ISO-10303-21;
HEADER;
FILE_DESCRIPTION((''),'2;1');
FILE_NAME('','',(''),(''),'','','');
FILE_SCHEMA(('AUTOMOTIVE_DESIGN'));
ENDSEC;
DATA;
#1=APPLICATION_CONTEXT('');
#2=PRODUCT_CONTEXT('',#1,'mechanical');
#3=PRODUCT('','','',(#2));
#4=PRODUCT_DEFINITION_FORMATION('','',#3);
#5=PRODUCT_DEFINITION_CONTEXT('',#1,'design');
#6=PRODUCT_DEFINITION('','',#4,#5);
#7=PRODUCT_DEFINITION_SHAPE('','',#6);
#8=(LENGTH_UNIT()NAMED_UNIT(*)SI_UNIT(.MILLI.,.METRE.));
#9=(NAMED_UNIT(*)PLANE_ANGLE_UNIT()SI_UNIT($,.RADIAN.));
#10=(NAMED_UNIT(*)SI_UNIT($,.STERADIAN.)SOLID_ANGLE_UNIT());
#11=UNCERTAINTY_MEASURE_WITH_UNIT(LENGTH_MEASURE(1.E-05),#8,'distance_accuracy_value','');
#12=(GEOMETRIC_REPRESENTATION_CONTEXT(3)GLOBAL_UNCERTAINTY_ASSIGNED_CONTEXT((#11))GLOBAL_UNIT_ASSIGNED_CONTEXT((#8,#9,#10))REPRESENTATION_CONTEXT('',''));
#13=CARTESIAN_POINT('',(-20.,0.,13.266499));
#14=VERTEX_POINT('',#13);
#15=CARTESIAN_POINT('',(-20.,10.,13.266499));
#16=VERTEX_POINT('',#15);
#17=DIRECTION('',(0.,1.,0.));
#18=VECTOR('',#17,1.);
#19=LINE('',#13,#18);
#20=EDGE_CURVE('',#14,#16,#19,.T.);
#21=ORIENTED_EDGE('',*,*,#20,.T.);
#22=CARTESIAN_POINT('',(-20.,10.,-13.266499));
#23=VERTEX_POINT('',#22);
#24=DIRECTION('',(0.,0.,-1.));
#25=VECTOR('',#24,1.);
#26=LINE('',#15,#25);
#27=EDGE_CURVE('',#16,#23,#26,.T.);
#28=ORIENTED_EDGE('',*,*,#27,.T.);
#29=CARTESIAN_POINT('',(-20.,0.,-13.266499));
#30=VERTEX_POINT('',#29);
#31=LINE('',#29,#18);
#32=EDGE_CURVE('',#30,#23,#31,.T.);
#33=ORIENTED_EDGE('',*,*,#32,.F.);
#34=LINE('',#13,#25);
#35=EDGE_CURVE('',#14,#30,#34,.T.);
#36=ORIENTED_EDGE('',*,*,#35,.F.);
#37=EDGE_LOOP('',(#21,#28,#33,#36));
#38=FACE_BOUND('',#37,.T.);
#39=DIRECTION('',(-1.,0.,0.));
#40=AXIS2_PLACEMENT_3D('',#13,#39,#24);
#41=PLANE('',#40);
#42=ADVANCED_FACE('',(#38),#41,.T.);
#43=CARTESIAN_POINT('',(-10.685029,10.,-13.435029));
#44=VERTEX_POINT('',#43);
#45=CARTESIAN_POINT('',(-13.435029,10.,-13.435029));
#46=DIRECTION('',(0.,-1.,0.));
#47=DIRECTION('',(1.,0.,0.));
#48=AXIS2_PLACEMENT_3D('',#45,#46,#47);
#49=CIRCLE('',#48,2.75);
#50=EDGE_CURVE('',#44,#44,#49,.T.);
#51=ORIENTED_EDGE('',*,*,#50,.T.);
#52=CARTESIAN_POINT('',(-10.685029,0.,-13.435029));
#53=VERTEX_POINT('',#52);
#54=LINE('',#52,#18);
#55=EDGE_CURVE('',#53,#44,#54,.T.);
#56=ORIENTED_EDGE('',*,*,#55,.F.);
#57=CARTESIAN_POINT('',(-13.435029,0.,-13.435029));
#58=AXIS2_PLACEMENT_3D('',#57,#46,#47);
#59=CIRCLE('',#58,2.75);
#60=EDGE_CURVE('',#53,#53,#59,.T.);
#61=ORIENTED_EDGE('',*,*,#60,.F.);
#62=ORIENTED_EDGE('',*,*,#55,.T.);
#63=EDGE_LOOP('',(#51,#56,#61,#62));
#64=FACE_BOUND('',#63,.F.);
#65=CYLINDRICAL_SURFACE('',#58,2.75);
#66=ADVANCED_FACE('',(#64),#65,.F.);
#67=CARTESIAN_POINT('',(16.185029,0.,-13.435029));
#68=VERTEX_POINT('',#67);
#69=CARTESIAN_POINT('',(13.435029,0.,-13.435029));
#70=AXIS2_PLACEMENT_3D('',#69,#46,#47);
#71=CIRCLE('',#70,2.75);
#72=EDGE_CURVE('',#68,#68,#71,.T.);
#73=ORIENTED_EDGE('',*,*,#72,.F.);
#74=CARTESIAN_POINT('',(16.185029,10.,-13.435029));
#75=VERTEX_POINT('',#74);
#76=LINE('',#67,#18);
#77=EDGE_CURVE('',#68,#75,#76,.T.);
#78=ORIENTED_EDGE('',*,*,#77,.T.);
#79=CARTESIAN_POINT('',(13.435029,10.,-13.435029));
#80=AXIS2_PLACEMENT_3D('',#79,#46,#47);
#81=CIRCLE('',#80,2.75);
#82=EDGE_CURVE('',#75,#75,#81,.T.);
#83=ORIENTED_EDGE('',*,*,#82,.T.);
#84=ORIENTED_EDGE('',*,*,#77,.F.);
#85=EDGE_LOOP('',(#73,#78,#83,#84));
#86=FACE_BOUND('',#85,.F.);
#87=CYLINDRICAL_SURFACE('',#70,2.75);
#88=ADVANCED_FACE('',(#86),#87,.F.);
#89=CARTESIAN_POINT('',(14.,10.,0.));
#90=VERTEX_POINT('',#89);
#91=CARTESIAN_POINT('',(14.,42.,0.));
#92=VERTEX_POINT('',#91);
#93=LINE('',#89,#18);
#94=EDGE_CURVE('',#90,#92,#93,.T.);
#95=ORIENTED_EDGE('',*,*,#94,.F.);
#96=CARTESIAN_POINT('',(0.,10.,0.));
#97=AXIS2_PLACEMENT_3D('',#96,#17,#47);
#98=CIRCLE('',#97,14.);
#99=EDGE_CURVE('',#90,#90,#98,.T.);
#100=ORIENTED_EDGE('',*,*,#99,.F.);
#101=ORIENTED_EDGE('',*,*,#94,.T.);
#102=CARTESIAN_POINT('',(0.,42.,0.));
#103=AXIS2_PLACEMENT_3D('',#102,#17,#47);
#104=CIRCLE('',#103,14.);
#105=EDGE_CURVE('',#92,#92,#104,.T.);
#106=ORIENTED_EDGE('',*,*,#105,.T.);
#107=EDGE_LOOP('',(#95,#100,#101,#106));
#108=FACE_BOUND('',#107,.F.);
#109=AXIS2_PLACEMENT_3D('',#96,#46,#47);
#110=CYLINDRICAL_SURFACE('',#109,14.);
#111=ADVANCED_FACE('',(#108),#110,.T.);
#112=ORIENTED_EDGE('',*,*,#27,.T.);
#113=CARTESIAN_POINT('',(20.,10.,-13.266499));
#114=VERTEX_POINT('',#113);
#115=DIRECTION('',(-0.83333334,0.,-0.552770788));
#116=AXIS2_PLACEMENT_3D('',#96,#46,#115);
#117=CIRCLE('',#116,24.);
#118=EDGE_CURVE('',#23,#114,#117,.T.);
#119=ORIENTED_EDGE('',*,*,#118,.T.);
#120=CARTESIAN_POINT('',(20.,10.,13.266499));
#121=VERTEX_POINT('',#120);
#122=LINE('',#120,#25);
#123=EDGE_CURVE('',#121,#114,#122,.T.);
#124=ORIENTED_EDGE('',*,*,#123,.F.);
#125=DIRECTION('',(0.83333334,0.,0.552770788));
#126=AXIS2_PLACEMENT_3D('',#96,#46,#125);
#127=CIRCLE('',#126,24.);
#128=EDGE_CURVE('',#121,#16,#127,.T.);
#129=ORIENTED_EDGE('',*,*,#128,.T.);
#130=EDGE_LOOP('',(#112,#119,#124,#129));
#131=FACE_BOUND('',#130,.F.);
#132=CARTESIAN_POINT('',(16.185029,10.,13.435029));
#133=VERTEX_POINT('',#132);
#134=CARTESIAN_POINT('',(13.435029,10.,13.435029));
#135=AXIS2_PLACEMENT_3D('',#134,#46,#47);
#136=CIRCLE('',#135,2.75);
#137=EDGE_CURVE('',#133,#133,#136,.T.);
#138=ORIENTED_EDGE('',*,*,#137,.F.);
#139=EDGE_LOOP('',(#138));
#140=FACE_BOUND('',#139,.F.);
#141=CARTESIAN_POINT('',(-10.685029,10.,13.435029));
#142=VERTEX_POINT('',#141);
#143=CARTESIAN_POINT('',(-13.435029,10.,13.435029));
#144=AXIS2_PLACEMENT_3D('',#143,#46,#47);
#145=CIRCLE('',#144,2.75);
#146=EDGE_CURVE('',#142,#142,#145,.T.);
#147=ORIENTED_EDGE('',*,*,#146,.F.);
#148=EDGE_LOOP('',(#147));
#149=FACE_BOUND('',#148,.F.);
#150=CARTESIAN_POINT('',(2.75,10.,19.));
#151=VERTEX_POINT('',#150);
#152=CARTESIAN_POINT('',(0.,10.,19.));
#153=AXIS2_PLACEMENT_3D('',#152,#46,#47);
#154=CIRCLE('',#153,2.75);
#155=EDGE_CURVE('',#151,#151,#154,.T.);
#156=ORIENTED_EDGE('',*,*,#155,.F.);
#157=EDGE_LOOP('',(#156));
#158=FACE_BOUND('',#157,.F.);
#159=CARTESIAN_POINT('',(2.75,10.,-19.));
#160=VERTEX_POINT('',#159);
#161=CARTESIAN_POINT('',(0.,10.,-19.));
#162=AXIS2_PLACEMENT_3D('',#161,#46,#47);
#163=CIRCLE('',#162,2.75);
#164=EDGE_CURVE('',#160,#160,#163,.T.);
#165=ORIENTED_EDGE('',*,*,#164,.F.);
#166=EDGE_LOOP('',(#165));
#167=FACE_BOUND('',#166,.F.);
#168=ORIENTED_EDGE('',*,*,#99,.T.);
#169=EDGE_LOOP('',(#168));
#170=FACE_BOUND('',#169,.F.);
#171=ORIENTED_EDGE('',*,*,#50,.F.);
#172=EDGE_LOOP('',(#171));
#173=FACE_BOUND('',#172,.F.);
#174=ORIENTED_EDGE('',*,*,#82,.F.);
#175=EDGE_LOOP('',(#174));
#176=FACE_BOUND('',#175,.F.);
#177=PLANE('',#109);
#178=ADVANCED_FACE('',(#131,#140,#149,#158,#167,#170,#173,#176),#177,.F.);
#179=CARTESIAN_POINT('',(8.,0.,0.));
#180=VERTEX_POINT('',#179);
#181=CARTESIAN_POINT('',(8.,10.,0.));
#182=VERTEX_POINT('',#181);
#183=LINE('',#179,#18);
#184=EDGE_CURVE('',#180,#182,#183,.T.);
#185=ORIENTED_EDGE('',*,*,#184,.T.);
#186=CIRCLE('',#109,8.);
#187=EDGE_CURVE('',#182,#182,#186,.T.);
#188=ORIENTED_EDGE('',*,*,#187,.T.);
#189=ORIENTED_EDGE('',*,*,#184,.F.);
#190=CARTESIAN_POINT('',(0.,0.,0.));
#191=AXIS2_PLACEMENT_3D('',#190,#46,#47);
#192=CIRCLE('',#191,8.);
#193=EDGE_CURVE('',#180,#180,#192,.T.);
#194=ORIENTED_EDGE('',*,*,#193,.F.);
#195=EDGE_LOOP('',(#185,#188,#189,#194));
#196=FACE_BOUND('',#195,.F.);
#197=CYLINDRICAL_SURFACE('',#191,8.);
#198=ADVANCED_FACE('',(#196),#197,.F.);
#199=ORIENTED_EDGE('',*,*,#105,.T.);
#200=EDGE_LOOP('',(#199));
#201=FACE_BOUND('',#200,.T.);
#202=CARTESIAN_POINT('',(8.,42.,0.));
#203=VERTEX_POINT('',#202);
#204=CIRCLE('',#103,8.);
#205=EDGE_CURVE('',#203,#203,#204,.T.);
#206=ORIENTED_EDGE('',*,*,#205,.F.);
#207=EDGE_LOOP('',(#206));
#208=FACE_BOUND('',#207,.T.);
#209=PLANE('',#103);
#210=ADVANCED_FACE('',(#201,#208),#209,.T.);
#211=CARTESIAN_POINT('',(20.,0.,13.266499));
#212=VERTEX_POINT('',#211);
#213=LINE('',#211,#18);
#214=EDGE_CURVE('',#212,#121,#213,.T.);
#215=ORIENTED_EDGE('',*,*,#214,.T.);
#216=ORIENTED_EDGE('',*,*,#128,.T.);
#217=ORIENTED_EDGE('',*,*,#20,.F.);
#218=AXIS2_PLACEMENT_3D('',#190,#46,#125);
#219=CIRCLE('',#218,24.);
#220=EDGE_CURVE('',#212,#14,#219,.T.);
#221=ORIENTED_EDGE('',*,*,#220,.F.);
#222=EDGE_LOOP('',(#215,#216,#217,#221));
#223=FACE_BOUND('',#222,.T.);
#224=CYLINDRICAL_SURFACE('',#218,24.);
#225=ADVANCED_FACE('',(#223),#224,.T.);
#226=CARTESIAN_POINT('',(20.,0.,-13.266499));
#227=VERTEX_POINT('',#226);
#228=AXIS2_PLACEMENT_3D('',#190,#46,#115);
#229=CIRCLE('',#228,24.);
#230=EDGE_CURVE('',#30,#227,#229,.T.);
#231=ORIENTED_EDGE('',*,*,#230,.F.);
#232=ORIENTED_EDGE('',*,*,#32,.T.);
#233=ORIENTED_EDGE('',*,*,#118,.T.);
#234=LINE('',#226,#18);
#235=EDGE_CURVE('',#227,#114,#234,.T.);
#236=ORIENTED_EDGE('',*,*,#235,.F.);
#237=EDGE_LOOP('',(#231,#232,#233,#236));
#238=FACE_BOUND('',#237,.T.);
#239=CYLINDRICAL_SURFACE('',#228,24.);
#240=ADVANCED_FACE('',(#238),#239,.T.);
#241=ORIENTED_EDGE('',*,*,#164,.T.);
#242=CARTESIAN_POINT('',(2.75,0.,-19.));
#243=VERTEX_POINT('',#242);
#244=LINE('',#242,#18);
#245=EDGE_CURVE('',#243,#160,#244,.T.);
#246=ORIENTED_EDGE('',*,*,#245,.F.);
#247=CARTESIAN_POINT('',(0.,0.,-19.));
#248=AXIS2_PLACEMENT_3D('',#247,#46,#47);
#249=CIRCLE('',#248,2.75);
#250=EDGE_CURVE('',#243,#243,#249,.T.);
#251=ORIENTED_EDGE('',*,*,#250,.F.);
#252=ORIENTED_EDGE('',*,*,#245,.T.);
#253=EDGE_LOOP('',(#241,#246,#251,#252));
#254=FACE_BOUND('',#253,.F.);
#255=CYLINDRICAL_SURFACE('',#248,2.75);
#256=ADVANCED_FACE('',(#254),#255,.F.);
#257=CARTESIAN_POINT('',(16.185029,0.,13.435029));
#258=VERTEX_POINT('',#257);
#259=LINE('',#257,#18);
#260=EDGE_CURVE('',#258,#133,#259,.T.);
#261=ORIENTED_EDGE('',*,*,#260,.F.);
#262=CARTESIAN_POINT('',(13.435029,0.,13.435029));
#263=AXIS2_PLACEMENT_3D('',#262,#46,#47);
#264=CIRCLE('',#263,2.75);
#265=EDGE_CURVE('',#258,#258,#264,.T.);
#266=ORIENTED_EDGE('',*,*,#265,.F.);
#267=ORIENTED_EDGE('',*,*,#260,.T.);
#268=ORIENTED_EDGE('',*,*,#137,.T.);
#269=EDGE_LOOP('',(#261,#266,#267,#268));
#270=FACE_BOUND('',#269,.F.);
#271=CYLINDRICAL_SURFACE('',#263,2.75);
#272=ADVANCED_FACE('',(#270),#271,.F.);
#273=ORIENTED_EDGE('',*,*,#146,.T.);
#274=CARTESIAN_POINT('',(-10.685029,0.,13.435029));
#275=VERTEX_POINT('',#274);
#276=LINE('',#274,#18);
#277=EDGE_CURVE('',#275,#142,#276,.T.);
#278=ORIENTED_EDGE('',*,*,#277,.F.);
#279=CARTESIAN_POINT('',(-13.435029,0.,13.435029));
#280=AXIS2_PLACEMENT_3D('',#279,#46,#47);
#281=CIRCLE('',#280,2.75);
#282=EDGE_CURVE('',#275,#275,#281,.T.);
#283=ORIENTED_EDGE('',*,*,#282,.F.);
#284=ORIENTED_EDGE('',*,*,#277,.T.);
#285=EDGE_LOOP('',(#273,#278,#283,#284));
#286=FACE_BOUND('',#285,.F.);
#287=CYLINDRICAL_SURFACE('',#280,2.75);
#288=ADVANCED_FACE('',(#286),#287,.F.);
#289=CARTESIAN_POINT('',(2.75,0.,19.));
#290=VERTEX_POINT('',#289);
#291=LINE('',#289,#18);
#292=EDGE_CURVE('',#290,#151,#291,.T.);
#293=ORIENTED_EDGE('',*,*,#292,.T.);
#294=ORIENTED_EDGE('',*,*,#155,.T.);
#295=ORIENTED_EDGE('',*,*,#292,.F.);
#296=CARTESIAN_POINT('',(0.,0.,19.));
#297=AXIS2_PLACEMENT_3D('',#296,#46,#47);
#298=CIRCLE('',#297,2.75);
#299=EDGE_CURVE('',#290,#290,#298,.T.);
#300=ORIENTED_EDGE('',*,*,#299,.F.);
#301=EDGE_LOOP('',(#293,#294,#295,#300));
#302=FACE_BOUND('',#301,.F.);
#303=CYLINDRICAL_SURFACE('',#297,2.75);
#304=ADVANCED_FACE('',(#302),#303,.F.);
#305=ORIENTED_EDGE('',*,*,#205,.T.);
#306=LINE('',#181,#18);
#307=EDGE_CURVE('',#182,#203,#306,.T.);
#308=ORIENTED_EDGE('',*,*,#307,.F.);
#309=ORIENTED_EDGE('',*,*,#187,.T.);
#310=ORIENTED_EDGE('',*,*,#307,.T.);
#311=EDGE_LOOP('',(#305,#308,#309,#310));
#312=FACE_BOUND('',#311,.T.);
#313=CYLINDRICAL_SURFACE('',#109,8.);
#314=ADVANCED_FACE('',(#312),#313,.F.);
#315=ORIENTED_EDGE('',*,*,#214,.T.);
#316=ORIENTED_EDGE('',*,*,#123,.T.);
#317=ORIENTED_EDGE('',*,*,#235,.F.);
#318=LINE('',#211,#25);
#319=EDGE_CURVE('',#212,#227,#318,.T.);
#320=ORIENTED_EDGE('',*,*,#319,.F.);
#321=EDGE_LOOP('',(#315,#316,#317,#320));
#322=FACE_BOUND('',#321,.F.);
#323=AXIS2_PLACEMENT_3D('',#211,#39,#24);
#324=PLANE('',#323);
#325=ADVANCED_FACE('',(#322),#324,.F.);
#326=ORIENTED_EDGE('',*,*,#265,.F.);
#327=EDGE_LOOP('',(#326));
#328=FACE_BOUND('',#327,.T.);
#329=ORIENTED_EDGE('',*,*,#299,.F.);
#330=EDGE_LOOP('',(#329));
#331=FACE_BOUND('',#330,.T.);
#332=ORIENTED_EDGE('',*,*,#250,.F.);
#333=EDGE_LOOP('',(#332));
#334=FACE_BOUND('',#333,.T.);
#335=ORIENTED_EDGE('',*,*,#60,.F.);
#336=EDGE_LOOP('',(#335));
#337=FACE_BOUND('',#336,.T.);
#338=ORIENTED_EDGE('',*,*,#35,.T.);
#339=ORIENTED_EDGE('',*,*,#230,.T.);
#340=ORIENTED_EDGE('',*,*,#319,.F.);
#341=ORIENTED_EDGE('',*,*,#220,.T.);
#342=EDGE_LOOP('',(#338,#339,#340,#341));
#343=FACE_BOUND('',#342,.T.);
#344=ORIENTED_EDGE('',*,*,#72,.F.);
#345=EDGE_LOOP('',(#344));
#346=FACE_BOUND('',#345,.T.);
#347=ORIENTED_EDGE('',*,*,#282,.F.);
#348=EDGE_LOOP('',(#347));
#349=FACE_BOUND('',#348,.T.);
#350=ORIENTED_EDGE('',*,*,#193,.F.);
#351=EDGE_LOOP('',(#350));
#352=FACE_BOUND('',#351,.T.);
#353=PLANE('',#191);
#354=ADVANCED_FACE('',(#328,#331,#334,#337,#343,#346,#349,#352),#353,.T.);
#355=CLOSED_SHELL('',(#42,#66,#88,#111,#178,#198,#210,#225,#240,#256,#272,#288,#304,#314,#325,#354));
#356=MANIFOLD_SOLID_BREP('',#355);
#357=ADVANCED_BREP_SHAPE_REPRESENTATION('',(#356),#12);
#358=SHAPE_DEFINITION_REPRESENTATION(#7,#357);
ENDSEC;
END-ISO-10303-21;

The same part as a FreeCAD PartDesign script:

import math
import FreeCAD as App
import Part
import Sketcher
Q = App.Units.Quantity

doc = App.newDocument("Part")
body = doc.addObject("PartDesign::Body", "Body")

# Sketch on XZ plane
sketch1 = doc.addObject("Sketcher::SketchObject", "Sketch")
body.addObject(sketch1)
sketch1.AttachmentSupport = (doc.XZ_Plane, [""])
sketch1.MapMode = "FlatFace"
sketch1.addGeometry([
    Part.LineSegment(App.Vector(-20, 13.266499, 0), App.Vector(-20, -13.266499, 0)),  # 0
    Part.ArcOfCircle(Part.Circle(App.Vector(0, 0, 0), App.Vector(0, 0, 1), 24), math.radians(-146.442691), math.radians(-33.557309)),  # 1
    Part.LineSegment(App.Vector(20, -13.266499, 0), App.Vector(20, 13.266499, 0)),  # 2
    Part.ArcOfCircle(Part.Circle(App.Vector(0, 0, 0), App.Vector(0, 0, 1), 24), math.radians(33.557309), math.radians(146.442691)),  # 3
    Part.Circle(App.Vector(-13.435029, -13.435029, 0), App.Vector(0, 0, 1), 2.75),  # 4
    Part.Circle(App.Vector(0, -19, 0), App.Vector(0, 0, 1), 2.75),  # 5
    Part.Circle(App.Vector(13.435029, -13.435029, 0), App.Vector(0, 0, 1), 2.75),  # 6
    Part.Circle(App.Vector(-13.435029, 13.435029, 0), App.Vector(0, 0, 1), 2.75),  # 7
    Part.Circle(App.Vector(0, 0, 0), App.Vector(0, 0, 1), 8),  # 8
    Part.Circle(App.Vector(0, 19, 0), App.Vector(0, 0, 1), 2.75),  # 9
    Part.Circle(App.Vector(13.435029, 13.435029, 0), App.Vector(0, 0, 1), 2.75),  # 10
], False)
sketch1.addConstraint([
    Sketcher.Constraint("Coincident", 0, 2, 1, 1),
    Sketcher.Constraint("Coincident", 1, 2, 2, 1),
    Sketcher.Constraint("Coincident", 2, 2, 3, 1),
    Sketcher.Constraint("Coincident", 3, 2, 0, 1),
    Sketcher.Constraint("Vertical", 0),
    Sketcher.Constraint("Vertical", 2),
    Sketcher.Constraint("Coincident", 1, 3, -1, 1),
    Sketcher.Constraint("Coincident", 3, 3, -1, 1),
    Sketcher.Constraint("Coincident", 8, 3, -1, 1),
    Sketcher.Constraint("Equal", 1, 3),
    Sketcher.Constraint("Equal", 4, 5),
    Sketcher.Constraint("Equal", 5, 6),
    Sketcher.Constraint("Equal", 6, 7),
    Sketcher.Constraint("Equal", 7, 9),
    Sketcher.Constraint("Equal", 9, 10),
    Sketcher.Constraint("Symmetric", 6, 3, 7, 3, -1, 1),
    Sketcher.Constraint("Symmetric", 5, 3, 9, 3, -1, 1),
    Sketcher.Constraint("Symmetric", 4, 3, 10, 3, -1, 1),
    Sketcher.Constraint("Symmetric", 4, 3, 6, 3, -2),
    Sketcher.Constraint("PointOnObject", 5, 3, -2),
    Sketcher.Constraint("Horizontal", 0, 2, 1, 2),
    Sketcher.Constraint("Diameter", 8, Q("16 mm")),
    Sketcher.Constraint("Radius", 1, Q("24 mm")),
    Sketcher.Constraint("Diameter", 4, Q("5.5 mm")),
    Sketcher.Constraint("DistanceY", 5, 3, -1, 1, Q("19 mm")),
    Sketcher.Constraint("DistanceX", 0, 2, -1, 1, Q("20 mm")),
    Sketcher.Constraint("DistanceX", 4, 3, -1, 1, Q("13.435029 mm")),
    Sketcher.Constraint("DistanceY", 4, 3, -1, 1, Q("13.435029 mm")),
])
pad1 = doc.addObject("PartDesign::Pad", "Pad")
body.addObject(pad1)
pad1.Profile = sketch1
pad1.Length = 10
pad1.Reversed = True

# Sketch on XZ plane
sketch2 = doc.addObject("Sketcher::SketchObject", "Sketch001")
body.addObject(sketch2)
sketch2.AttachmentSupport = (doc.XZ_Plane, [""])
sketch2.MapMode = "FlatFace"
sketch2.AttachmentOffset = App.Placement(App.Vector(0, 0, -10), App.Rotation())
sketch2.addGeometry([
    Part.Circle(App.Vector(0, 0, 0), App.Vector(0, 0, 1), 14),
    Part.Circle(App.Vector(0, 0, 0), App.Vector(0, 0, 1), 8),
], False)
sketch2.addConstraint([
    Sketcher.Constraint("Coincident", 0, 3, -1, 1),
    Sketcher.Constraint("Coincident", 1, 3, -1, 1),
    Sketcher.Constraint("Diameter", 0, Q("28 mm")),
    Sketcher.Constraint("Diameter", 1, Q("16 mm")),
])
pad2 = doc.addObject("PartDesign::Pad", "Pad001")
body.addObject(pad2)
pad2.Profile = sketch2
pad2.Length = 32
pad2.Reversed = True

doc.recompute()
